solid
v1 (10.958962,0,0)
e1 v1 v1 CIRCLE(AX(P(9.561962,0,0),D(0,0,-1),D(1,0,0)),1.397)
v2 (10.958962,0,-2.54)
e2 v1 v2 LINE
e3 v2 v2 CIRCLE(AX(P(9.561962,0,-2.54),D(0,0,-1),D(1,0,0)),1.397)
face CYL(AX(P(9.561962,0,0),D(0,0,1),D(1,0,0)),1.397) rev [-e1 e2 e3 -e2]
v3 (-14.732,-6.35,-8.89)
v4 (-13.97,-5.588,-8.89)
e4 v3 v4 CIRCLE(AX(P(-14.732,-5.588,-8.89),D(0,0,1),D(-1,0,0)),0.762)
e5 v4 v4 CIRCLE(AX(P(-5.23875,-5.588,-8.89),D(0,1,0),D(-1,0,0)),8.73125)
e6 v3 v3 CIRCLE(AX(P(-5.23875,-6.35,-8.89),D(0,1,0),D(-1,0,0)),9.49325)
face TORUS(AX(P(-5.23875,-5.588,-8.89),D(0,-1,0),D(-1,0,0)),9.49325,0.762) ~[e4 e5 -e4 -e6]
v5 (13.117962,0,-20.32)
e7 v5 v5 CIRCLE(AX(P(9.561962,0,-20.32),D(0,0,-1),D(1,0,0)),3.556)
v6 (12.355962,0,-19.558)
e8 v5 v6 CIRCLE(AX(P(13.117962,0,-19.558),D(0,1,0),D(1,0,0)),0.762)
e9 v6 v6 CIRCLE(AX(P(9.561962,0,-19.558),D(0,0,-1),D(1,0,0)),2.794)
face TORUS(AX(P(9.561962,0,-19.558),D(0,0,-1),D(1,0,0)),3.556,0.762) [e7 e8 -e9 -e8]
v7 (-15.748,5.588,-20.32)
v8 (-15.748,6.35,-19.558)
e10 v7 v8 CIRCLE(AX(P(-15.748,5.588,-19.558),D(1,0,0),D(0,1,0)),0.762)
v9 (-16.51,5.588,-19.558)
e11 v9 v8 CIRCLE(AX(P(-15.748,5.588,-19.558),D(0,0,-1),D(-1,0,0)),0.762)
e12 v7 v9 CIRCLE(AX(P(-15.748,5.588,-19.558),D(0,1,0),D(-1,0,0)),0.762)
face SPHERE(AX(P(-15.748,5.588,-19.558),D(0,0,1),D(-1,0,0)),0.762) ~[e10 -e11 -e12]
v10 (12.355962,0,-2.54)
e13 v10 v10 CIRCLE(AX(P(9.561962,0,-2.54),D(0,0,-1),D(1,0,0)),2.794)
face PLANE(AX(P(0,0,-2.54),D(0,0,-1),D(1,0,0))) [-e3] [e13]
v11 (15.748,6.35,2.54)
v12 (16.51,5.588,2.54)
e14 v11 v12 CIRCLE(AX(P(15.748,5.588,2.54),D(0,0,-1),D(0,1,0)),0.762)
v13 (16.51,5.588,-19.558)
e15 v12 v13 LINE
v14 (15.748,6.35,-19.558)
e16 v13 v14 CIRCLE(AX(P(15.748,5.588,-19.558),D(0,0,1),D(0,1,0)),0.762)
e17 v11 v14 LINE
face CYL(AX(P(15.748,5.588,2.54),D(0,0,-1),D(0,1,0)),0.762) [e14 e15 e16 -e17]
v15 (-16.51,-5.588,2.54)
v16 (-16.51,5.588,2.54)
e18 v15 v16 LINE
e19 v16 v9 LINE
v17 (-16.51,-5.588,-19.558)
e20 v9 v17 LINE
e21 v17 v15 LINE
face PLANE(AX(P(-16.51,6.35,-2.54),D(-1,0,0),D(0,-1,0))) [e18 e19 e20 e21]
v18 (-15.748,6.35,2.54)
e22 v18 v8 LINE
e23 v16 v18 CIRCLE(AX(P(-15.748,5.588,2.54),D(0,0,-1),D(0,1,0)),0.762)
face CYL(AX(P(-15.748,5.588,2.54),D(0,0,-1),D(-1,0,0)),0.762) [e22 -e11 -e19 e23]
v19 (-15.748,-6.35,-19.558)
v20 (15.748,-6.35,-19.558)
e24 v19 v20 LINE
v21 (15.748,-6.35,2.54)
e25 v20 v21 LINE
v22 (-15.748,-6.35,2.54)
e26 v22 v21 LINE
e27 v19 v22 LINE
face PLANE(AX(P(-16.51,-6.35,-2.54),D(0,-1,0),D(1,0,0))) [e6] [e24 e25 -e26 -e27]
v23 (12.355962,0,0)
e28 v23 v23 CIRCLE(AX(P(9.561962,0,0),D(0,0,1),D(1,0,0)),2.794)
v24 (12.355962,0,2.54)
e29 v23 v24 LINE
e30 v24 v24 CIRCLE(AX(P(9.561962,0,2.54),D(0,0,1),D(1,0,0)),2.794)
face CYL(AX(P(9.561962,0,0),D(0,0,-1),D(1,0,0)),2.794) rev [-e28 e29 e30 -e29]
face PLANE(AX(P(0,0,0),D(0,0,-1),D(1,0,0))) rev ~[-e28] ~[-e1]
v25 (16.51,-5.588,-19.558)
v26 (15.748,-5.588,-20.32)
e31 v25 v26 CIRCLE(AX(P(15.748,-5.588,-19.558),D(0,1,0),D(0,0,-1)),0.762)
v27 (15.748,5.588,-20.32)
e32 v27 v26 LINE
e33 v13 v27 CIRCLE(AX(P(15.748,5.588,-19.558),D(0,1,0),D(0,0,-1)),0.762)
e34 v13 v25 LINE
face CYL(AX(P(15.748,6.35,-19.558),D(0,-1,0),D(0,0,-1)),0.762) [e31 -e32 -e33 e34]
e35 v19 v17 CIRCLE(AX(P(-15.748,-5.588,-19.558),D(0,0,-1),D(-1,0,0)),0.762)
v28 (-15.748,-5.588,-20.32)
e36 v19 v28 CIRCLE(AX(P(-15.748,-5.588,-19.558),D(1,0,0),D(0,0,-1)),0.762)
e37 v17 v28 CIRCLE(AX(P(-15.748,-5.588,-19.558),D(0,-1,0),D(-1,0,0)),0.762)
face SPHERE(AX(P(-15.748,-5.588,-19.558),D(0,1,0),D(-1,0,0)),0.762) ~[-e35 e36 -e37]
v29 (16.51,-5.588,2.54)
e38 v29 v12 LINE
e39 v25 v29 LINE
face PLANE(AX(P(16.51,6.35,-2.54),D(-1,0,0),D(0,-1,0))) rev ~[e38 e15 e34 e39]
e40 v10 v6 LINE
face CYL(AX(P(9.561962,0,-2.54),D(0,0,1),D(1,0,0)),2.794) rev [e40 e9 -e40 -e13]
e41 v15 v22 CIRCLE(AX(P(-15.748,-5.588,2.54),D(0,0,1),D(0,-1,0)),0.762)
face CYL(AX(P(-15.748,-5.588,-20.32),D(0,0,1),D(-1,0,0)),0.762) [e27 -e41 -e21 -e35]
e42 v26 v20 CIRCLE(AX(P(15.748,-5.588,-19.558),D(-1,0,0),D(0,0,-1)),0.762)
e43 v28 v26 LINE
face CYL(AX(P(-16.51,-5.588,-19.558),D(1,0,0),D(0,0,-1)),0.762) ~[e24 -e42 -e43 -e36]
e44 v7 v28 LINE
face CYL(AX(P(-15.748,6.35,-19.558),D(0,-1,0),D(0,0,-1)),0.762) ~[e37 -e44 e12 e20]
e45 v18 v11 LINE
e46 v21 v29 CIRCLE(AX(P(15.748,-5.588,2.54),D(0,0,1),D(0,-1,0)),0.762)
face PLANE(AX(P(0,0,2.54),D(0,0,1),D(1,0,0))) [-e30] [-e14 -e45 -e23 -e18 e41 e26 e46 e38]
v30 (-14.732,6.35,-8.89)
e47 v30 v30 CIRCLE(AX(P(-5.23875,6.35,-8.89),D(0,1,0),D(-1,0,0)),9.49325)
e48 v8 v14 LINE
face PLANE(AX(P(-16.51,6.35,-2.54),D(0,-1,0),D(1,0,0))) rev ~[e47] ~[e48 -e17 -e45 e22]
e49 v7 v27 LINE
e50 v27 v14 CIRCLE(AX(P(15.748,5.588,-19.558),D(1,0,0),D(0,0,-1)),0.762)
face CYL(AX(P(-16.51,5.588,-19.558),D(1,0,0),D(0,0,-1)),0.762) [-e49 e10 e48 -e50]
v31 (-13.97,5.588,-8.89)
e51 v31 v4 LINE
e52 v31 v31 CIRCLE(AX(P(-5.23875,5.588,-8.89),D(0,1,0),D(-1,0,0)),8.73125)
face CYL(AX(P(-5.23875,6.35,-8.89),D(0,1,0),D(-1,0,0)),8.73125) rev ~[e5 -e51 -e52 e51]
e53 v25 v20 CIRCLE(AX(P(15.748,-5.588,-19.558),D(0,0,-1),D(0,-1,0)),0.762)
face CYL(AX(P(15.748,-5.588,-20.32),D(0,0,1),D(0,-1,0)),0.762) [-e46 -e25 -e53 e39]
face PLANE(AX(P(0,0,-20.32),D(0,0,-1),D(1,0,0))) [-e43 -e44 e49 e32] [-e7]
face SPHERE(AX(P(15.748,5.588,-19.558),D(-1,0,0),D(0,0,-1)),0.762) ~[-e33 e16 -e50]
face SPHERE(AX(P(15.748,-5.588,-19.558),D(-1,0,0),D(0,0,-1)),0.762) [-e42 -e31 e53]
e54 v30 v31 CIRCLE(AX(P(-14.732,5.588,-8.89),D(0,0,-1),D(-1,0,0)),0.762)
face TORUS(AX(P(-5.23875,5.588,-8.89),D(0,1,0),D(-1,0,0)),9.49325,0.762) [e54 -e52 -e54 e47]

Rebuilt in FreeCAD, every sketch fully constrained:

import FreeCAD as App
import Part
import Sketcher
from FreeCAD import Vector
Q = App.Units.Quantity


def edges_at(feature, points):
    """Names of the edges that pass closest to the given points."""
    edges = feature.Shape.Edges
    near = lambda p: min(range(len(edges)), key=lambda i: edges[i].distToShape(Part.Vertex(*p))[0])
    return sorted({f"Edge{near(p) + 1}" for p in points})

doc = App.newDocument("Part")
body = doc.addObject("PartDesign::Body", "Body")

sketch1 = body.newObject("Sketcher::SketchObject", "Sketch")
sketch1.AttachmentSupport = (doc.getObject("XY_Plane"), [""])
sketch1.MapMode = "FlatFace"
sketch1.addGeometry([
    Part.LineSegment(Vector(-16.5, 6.3, 0), Vector(-16.5, -6.3, 0)),
    Part.LineSegment(Vector(-16.5, -6.3, 0), Vector(16.5, -6.3, 0)),
    Part.LineSegment(Vector(16.5, -6.3, 0), Vector(16.5, 6.3, 0)),
    Part.LineSegment(Vector(16.5, 6.3, 0), Vector(-16.5, 6.3, 0)),
    Part.Circle(Vector(9.6, 0, 0), Vector(0, 0, 1), 2.8),
], False)
sketch1.addConstraint([
    Sketcher.Constraint("Coincident", 0, 2, 1, 1),
    Sketcher.Constraint("Coincident", 1, 2, 2, 1),
    Sketcher.Constraint("Coincident", 2, 2, 3, 1),
    Sketcher.Constraint("Coincident", 3, 2, 0, 1),
    Sketcher.Constraint("Vertical", 0),
    Sketcher.Constraint("Horizontal", 1),
    Sketcher.Constraint("Vertical", 2),
    Sketcher.Constraint("Horizontal", 3),
    Sketcher.Constraint("Symmetric", 0, 2, 2, 2, -1, 1),
    Sketcher.Constraint("PointOnObject", 4, 3, -1),
    Sketcher.Constraint("Diameter", 4, Q("0.22 in")),
    Sketcher.Constraint("DistanceX", 1, 1, 1, 2, Q("1.3 in")),
    Sketcher.Constraint("DistanceY", 0, 2, 0, 1, Q("0.5 in")),
    Sketcher.Constraint("DistanceX", 0, 2, 4, 3, 26.071962),
])
pad1 = body.newObject("PartDesign::Pad", "Pad")
pad1.Profile = sketch1
pad1.Length = Q("0.1 in")

sketch2 = body.newObject("Sketcher::SketchObject", "Sketch001")
sketch2.AttachmentSupport = (doc.getObject("XY_Plane"), [""])
sketch2.MapMode = "FlatFace"
sketch2.addGeometry([
    Part.LineSegment(Vector(-16.5, -6.3, 0), Vector(-16.5, 6.3, 0)),
    Part.LineSegment(Vector(-16.5, 6.3, 0), Vector(16.5, 6.3, 0)),
    Part.LineSegment(Vector(16.5, 6.3, 0), Vector(16.5, -6.3, 0)),
    Part.LineSegment(Vector(16.5, -6.3, 0), Vector(-16.5, -6.3, 0)),
    Part.Circle(Vector(9.6, 0, 0), Vector(0, 0, 1), 1.4),
], False)
sketch2.addConstraint([
    Sketcher.Constraint("Coincident", 0, 2, 1, 1),
    Sketcher.Constraint("Coincident", 1, 2, 2, 1),
    Sketcher.Constraint("Coincident", 2, 2, 3, 1),
    Sketcher.Constraint("Coincident", 3, 2, 0, 1),
    Sketcher.Constraint("Vertical", 0),
    Sketcher.Constraint("Horizontal", 1),
    Sketcher.Constraint("Vertical", 2),
    Sketcher.Constraint("Horizontal", 3),
    Sketcher.Constraint("Symmetric", 0, 2, 2, 2, -1, 1),
    Sketcher.Constraint("PointOnObject", 4, 3, -1),
    Sketcher.Constraint("Diameter", 4, Q("0.11 in")),
    Sketcher.Constraint("DistanceX", 1, 1, 1, 2, Q("1.3 in")),
    Sketcher.Constraint("DistanceY", 0, 1, 0, 2, Q("0.5 in")),
    Sketcher.Constraint("DistanceX", 0, 2, 4, 3, 26.071962),
])
pad2 = body.newObject("PartDesign::Pad", "Pad001")
pad2.Profile = sketch2
pad2.Length = Q("0.1 in")
pad2.Reversed = True

sketch3 = body.newObject("Sketcher::SketchObject", "Sketch002")
sketch3.AttachmentSupport = (doc.getObject("XY_Plane"), [""])
sketch3.MapMode = "FlatFace"
sketch3.AttachmentOffset = App.Placement(Vector(0, 0, -0.1 * 25.4), App.Rotation())
sketch3.addGeometry([
    Part.LineSegment(Vector(-16.5, -6.3, 0), Vector(-16.5, 6.3, 0)),
    Part.LineSegment(Vector(-16.5, 6.3, 0), Vector(16.5, 6.3, 0)),
    Part.LineSegment(Vector(16.5, 6.3, 0), Vector(16.5, -6.3, 0)),
    Part.LineSegment(Vector(16.5, -6.3, 0), Vector(-16.5, -6.3, 0)),
    Part.Circle(Vector(9.6, 0, 0), Vector(0, 0, 1), 2.8),
], False)
sketch3.addConstraint([
    Sketcher.Constraint("Coincident", 0, 2, 1, 1),
    Sketcher.Constraint("Coincident", 1, 2, 2, 1),
    Sketcher.Constraint("Coincident", 2, 2, 3, 1),
    Sketcher.Constraint("Coincident", 3, 2, 0, 1),
    Sketcher.Constraint("Vertical", 0),
    Sketcher.Constraint("Horizontal", 1),
    Sketcher.Constraint("Vertical", 2),
    Sketcher.Constraint("Horizontal", 3),
    Sketcher.Constraint("Symmetric", 0, 2, 2, 2, -1, 1),
    Sketcher.Constraint("PointOnObject", 4, 3, -1),
    Sketcher.Constraint("Diameter", 4, Q("0.22 in")),
    Sketcher.Constraint("DistanceX", 1, 1, 1, 2, Q("1.3 in")),
    Sketcher.Constraint("DistanceY", 0, 1, 0, 2, Q("0.5 in")),
    Sketcher.Constraint("DistanceX", 0, 2, 4, 3, 26.071962),
])
pad3 = body.newObject("PartDesign::Pad", "Pad002")
pad3.Profile = sketch3
pad3.Length = Q("0.7 in")
pad3.Reversed = True

sketch4 = body.newObject("Sketcher::SketchObject", "Sketch003")
sketch4.AttachmentSupport = (doc.getObject("XZ_Plane"), [""])
sketch4.MapMode = "FlatFace"
sketch4.AttachmentOffset = App.Placement(Vector(0, 0, -0.25 * 25.4), App.Rotation())
sketch4.addGeometry(Part.Circle(Vector(-5, -9, 0), Vector(0, 0, 1), 9), False)
sketch4.addConstraint([
    Sketcher.Constraint("Diameter", 0, Q("0.6875 in")),
    Sketcher.Constraint("DistanceY", 0, 3, -1, 1, Q("0.35 in")),
    Sketcher.Constraint("DistanceX", 0, 3, -1, 1, 5.23875),
])
pocket1 = body.newObject("PartDesign::Pocket", "Pocket")
pocket1.Profile = sketch4
pocket1.Type = "ThroughAll"
pocket1.Reversed = True
doc.recompute()

fillet = body.newObject("PartDesign::Fillet", "Fillet")
fillet.Base = (pocket1, edges_at(pocket1, [(3.493, -6.35, -8.89), (3.493, 6.35, -8.89)]))
fillet.Radius = Q("0.03 in")
doc.recompute()

fillet2 = body.newObject("PartDesign::Fillet", "Fillet001")
fillet2.Base = (fillet, edges_at(fillet, [(6.768, 0, -20.32)]))
fillet2.Radius = Q("0.03 in")
doc.recompute()

fillet3 = body.newObject("PartDesign::Fillet", "Fillet002")
fillet3.Base = (fillet2, edges_at(fillet2, [
    (-16.51, 6.35, -8.89),
    (-16.51, 0, -20.32),
    (-16.51, -6.35, -8.89),
    (0, -6.35, -20.32),
    (0, 6.35, -20.32),
    (16.51, 0, -20.32),
    (16.51, 6.35, -8.89),
    (16.51, -6.35, -8.89),
]))
fillet3.Radius = Q("0.03 in")

doc.recompute()
